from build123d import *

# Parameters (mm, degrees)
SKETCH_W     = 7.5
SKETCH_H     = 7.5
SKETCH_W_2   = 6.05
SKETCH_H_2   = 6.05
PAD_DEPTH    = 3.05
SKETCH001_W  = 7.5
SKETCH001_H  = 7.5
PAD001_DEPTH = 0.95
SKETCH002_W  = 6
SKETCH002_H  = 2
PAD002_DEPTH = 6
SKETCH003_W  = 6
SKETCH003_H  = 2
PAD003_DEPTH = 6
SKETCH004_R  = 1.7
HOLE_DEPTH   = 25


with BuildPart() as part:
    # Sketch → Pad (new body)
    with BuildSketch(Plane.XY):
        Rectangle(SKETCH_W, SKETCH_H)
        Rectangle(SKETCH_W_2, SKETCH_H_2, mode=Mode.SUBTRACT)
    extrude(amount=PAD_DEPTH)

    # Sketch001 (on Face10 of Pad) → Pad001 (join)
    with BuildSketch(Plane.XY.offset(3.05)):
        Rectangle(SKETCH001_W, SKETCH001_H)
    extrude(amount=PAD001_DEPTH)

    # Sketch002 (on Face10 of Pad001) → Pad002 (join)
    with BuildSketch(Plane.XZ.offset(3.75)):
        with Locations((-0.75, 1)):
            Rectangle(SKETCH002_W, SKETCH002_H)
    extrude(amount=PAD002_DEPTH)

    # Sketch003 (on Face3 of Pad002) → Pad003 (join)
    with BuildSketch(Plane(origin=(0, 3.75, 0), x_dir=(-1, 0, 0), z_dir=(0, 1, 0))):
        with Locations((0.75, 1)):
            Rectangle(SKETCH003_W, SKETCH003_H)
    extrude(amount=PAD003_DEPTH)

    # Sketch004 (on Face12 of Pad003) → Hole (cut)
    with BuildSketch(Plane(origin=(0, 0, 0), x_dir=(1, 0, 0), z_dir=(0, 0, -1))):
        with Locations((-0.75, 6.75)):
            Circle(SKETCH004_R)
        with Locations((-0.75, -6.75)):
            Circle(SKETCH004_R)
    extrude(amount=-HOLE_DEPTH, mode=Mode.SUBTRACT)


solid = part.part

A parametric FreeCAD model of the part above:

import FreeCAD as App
import Part
import Sketcher

V = App.Vector


def add_polygon(sketch, points):
    """Adds a closed chain of lines whose ends are joined by coincident constraints."""
    first, n = sketch.GeometryCount, len(points)
    for a, b in zip(points, points[1:] + points[:1]):
        sketch.addGeometry(Part.LineSegment(App.Vector(*a, 0), App.Vector(*b, 0)), False)
    for i in range(n):
        sketch.addConstraint(Sketcher.Constraint("Coincident", first + i, 2, first + (i + 1) % n, 1))

doc = App.newDocument("Part")
body = doc.addObject("PartDesign::Body", "Body")

# Sketch on XY plane
sketch1 = body.newObject("Sketcher::SketchObject", "Sketch")
sketch1.AttachmentSupport = (doc.getObject("XY_Plane"), [""])
sketch1.MapMode = "FlatFace"
add_polygon(sketch1, [(-3.75, 3.75), (-3.75, -3.75), (3.75, -3.75), (3.75, 3.75)])  # lines 0-3
add_polygon(sketch1, [(3.025, -3.025), (-3.025, -3.025), (-3.025, 3.025), (3.025, 3.025)])  # lines 4-7
sketch1.addConstraint([
    Sketcher.Constraint("Vertical", 0),
    Sketcher.Constraint("Horizontal", 1),
    Sketcher.Constraint("Vertical", 2),
    Sketcher.Constraint("Horizontal", 3),
    Sketcher.Constraint("Horizontal", 4),
    Sketcher.Constraint("Vertical", 5),
    Sketcher.Constraint("Horizontal", 6),
    Sketcher.Constraint("Vertical", 7),
    Sketcher.Constraint("Symmetric", 0, 2, 2, 2, -1, 1),
    Sketcher.Constraint("Symmetric", 4, 2, 6, 2, -1, 1),
    Sketcher.Constraint("Equal", 3, 0),
    Sketcher.Constraint("Equal", 6, 5),
    Sketcher.Constraint("DistanceX", 1, 1, 1, 2, 7.5),
    Sketcher.Constraint("DistanceX", 4, 2, 4, 1, 6.05),
])
pad1 = body.newObject("PartDesign::Pad", "Pad")
pad1.Profile = sketch1
pad1.Length = 3.05

# Sketch on XY plane
sketch2 = body.newObject("Sketcher::SketchObject", "Sketch001")
sketch2.AttachmentSupport = (doc.getObject("XY_Plane"), [""])
sketch2.MapMode = "FlatFace"
sketch2.AttachmentOffset = App.Placement(V(0, 0, 3.05), App.Rotation())
add_polygon(sketch2, [(-3.75, 3.75), (-3.75, -3.75), (3.75, -3.75), (3.75, 3.75)])  # lines 0-3
sketch2.addConstraint([
    Sketcher.Constraint("Vertical", 0),
    Sketcher.Constraint("Horizontal", 1),
    Sketcher.Constraint("Vertical", 2),
    Sketcher.Constraint("Horizontal", 3),
    Sketcher.Constraint("Symmetric", 0, 2, 2, 2, -1, 1),
    Sketcher.Constraint("Equal", 3, 0),
    Sketcher.Constraint("DistanceX", 1, 1, 1, 2, 7.5),
])
pad2 = body.newObject("PartDesign::Pad", "Pad001")
pad2.Profile = sketch2
pad2.Length = 0.95

# Sketch on XZ plane
sketch3 = body.newObject("Sketcher::SketchObject", "Sketch002")
sketch3.AttachmentSupport = (doc.getObject("XZ_Plane"), [""])
sketch3.MapMode = "FlatFace"
sketch3.AttachmentOffset = App.Placement(V(0, 0, 3.75), App.Rotation())
add_polygon(sketch3, [(-3.75, 2), (-3.75, 0), (2.25, 0), (2.25, 2)])  # lines 0-3
sketch3.addConstraint([
    Sketcher.Constraint("Vertical", 0),
    Sketcher.Constraint("Horizontal", 1),
    Sketcher.Constraint("Vertical", 2),
    Sketcher.Constraint("Horizontal", 3),
    Sketcher.Constraint("PointOnObject", 0, 2, -1),
    Sketcher.Constraint("DistanceX", 1, 1, 1, 2, 6.0),
    Sketcher.Constraint("DistanceY", 0, 2, 0, 1, 2.0),
    Sketcher.Constraint("DistanceX", 0, 2, -1, 1, 3.75),
])
pad3 = body.newObject("PartDesign::Pad", "Pad002")
pad3.Profile = sketch3
pad3.Length = 6

# Sketch on XZ plane
sketch4 = body.newObject("Sketcher::SketchObject", "Sketch003")
sketch4.AttachmentSupport = (doc.getObject("XZ_Plane"), [""])
sketch4.MapMode = "FlatFace"
sketch4.AttachmentOffset = App.Placement(V(0, 0, -3.75), App.Rotation())
add_polygon(sketch4, [(2.25, 2), (2.25, 0), (-3.75, 0), (-3.75, 2)])  # lines 0-3
sketch4.addConstraint([
    Sketcher.Constraint("Vertical", 0),
    Sketcher.Constraint("Horizontal", 1),
    Sketcher.Constraint("Vertical", 2),
    Sketcher.Constraint("Horizontal", 3),
    Sketcher.Constraint("PointOnObject", 0, 2, -1),
    Sketcher.Constraint("DistanceX", 1, 2, 1, 1, 6.0),
    Sketcher.Constraint("DistanceY", 0, 2, 0, 1, 2.0),
    Sketcher.Constraint("DistanceX", -1, 1, 0, 2, 2.25),
])
pad4 = body.newObject("PartDesign::Pad", "Pad003")
pad4.Profile = sketch4
pad4.Length = 6
pad4.Reversed = True

# Sketch on XY plane
sketch5 = body.newObject("Sketcher::SketchObject", "Sketch004")
sketch5.AttachmentSupport = (doc.getObject("XY_Plane"), [""])
sketch5.MapMode = "FlatFace"
sketch5.addGeometry([
    Part.Circle(V(-0.75, -6.75, 0), V(0, 0, 1), 1.7),
    Part.Circle(V(-0.75, 6.75, 0), V(0, 0, 1), 1.7),
], False)
sketch5.addConstraint([
    Sketcher.Constraint("Equal", 0, 1),
    Sketcher.Constraint("Symmetric", 0, 3, 1, 3, -1),
    Sketcher.Constraint("Diameter", 0, 3.4),
    Sketcher.Constraint("DistanceY", 0, 3, 1, 3, 13.5),
    Sketcher.Constraint("DistanceX", 0, 3, -1, 1, 0.75),
])
pocket1 = body.newObject("PartDesign::Pocket", "Pocket")
pocket1.Profile = sketch5
pocket1.Length = 25
pocket1.Reversed = True

doc.recompute()
